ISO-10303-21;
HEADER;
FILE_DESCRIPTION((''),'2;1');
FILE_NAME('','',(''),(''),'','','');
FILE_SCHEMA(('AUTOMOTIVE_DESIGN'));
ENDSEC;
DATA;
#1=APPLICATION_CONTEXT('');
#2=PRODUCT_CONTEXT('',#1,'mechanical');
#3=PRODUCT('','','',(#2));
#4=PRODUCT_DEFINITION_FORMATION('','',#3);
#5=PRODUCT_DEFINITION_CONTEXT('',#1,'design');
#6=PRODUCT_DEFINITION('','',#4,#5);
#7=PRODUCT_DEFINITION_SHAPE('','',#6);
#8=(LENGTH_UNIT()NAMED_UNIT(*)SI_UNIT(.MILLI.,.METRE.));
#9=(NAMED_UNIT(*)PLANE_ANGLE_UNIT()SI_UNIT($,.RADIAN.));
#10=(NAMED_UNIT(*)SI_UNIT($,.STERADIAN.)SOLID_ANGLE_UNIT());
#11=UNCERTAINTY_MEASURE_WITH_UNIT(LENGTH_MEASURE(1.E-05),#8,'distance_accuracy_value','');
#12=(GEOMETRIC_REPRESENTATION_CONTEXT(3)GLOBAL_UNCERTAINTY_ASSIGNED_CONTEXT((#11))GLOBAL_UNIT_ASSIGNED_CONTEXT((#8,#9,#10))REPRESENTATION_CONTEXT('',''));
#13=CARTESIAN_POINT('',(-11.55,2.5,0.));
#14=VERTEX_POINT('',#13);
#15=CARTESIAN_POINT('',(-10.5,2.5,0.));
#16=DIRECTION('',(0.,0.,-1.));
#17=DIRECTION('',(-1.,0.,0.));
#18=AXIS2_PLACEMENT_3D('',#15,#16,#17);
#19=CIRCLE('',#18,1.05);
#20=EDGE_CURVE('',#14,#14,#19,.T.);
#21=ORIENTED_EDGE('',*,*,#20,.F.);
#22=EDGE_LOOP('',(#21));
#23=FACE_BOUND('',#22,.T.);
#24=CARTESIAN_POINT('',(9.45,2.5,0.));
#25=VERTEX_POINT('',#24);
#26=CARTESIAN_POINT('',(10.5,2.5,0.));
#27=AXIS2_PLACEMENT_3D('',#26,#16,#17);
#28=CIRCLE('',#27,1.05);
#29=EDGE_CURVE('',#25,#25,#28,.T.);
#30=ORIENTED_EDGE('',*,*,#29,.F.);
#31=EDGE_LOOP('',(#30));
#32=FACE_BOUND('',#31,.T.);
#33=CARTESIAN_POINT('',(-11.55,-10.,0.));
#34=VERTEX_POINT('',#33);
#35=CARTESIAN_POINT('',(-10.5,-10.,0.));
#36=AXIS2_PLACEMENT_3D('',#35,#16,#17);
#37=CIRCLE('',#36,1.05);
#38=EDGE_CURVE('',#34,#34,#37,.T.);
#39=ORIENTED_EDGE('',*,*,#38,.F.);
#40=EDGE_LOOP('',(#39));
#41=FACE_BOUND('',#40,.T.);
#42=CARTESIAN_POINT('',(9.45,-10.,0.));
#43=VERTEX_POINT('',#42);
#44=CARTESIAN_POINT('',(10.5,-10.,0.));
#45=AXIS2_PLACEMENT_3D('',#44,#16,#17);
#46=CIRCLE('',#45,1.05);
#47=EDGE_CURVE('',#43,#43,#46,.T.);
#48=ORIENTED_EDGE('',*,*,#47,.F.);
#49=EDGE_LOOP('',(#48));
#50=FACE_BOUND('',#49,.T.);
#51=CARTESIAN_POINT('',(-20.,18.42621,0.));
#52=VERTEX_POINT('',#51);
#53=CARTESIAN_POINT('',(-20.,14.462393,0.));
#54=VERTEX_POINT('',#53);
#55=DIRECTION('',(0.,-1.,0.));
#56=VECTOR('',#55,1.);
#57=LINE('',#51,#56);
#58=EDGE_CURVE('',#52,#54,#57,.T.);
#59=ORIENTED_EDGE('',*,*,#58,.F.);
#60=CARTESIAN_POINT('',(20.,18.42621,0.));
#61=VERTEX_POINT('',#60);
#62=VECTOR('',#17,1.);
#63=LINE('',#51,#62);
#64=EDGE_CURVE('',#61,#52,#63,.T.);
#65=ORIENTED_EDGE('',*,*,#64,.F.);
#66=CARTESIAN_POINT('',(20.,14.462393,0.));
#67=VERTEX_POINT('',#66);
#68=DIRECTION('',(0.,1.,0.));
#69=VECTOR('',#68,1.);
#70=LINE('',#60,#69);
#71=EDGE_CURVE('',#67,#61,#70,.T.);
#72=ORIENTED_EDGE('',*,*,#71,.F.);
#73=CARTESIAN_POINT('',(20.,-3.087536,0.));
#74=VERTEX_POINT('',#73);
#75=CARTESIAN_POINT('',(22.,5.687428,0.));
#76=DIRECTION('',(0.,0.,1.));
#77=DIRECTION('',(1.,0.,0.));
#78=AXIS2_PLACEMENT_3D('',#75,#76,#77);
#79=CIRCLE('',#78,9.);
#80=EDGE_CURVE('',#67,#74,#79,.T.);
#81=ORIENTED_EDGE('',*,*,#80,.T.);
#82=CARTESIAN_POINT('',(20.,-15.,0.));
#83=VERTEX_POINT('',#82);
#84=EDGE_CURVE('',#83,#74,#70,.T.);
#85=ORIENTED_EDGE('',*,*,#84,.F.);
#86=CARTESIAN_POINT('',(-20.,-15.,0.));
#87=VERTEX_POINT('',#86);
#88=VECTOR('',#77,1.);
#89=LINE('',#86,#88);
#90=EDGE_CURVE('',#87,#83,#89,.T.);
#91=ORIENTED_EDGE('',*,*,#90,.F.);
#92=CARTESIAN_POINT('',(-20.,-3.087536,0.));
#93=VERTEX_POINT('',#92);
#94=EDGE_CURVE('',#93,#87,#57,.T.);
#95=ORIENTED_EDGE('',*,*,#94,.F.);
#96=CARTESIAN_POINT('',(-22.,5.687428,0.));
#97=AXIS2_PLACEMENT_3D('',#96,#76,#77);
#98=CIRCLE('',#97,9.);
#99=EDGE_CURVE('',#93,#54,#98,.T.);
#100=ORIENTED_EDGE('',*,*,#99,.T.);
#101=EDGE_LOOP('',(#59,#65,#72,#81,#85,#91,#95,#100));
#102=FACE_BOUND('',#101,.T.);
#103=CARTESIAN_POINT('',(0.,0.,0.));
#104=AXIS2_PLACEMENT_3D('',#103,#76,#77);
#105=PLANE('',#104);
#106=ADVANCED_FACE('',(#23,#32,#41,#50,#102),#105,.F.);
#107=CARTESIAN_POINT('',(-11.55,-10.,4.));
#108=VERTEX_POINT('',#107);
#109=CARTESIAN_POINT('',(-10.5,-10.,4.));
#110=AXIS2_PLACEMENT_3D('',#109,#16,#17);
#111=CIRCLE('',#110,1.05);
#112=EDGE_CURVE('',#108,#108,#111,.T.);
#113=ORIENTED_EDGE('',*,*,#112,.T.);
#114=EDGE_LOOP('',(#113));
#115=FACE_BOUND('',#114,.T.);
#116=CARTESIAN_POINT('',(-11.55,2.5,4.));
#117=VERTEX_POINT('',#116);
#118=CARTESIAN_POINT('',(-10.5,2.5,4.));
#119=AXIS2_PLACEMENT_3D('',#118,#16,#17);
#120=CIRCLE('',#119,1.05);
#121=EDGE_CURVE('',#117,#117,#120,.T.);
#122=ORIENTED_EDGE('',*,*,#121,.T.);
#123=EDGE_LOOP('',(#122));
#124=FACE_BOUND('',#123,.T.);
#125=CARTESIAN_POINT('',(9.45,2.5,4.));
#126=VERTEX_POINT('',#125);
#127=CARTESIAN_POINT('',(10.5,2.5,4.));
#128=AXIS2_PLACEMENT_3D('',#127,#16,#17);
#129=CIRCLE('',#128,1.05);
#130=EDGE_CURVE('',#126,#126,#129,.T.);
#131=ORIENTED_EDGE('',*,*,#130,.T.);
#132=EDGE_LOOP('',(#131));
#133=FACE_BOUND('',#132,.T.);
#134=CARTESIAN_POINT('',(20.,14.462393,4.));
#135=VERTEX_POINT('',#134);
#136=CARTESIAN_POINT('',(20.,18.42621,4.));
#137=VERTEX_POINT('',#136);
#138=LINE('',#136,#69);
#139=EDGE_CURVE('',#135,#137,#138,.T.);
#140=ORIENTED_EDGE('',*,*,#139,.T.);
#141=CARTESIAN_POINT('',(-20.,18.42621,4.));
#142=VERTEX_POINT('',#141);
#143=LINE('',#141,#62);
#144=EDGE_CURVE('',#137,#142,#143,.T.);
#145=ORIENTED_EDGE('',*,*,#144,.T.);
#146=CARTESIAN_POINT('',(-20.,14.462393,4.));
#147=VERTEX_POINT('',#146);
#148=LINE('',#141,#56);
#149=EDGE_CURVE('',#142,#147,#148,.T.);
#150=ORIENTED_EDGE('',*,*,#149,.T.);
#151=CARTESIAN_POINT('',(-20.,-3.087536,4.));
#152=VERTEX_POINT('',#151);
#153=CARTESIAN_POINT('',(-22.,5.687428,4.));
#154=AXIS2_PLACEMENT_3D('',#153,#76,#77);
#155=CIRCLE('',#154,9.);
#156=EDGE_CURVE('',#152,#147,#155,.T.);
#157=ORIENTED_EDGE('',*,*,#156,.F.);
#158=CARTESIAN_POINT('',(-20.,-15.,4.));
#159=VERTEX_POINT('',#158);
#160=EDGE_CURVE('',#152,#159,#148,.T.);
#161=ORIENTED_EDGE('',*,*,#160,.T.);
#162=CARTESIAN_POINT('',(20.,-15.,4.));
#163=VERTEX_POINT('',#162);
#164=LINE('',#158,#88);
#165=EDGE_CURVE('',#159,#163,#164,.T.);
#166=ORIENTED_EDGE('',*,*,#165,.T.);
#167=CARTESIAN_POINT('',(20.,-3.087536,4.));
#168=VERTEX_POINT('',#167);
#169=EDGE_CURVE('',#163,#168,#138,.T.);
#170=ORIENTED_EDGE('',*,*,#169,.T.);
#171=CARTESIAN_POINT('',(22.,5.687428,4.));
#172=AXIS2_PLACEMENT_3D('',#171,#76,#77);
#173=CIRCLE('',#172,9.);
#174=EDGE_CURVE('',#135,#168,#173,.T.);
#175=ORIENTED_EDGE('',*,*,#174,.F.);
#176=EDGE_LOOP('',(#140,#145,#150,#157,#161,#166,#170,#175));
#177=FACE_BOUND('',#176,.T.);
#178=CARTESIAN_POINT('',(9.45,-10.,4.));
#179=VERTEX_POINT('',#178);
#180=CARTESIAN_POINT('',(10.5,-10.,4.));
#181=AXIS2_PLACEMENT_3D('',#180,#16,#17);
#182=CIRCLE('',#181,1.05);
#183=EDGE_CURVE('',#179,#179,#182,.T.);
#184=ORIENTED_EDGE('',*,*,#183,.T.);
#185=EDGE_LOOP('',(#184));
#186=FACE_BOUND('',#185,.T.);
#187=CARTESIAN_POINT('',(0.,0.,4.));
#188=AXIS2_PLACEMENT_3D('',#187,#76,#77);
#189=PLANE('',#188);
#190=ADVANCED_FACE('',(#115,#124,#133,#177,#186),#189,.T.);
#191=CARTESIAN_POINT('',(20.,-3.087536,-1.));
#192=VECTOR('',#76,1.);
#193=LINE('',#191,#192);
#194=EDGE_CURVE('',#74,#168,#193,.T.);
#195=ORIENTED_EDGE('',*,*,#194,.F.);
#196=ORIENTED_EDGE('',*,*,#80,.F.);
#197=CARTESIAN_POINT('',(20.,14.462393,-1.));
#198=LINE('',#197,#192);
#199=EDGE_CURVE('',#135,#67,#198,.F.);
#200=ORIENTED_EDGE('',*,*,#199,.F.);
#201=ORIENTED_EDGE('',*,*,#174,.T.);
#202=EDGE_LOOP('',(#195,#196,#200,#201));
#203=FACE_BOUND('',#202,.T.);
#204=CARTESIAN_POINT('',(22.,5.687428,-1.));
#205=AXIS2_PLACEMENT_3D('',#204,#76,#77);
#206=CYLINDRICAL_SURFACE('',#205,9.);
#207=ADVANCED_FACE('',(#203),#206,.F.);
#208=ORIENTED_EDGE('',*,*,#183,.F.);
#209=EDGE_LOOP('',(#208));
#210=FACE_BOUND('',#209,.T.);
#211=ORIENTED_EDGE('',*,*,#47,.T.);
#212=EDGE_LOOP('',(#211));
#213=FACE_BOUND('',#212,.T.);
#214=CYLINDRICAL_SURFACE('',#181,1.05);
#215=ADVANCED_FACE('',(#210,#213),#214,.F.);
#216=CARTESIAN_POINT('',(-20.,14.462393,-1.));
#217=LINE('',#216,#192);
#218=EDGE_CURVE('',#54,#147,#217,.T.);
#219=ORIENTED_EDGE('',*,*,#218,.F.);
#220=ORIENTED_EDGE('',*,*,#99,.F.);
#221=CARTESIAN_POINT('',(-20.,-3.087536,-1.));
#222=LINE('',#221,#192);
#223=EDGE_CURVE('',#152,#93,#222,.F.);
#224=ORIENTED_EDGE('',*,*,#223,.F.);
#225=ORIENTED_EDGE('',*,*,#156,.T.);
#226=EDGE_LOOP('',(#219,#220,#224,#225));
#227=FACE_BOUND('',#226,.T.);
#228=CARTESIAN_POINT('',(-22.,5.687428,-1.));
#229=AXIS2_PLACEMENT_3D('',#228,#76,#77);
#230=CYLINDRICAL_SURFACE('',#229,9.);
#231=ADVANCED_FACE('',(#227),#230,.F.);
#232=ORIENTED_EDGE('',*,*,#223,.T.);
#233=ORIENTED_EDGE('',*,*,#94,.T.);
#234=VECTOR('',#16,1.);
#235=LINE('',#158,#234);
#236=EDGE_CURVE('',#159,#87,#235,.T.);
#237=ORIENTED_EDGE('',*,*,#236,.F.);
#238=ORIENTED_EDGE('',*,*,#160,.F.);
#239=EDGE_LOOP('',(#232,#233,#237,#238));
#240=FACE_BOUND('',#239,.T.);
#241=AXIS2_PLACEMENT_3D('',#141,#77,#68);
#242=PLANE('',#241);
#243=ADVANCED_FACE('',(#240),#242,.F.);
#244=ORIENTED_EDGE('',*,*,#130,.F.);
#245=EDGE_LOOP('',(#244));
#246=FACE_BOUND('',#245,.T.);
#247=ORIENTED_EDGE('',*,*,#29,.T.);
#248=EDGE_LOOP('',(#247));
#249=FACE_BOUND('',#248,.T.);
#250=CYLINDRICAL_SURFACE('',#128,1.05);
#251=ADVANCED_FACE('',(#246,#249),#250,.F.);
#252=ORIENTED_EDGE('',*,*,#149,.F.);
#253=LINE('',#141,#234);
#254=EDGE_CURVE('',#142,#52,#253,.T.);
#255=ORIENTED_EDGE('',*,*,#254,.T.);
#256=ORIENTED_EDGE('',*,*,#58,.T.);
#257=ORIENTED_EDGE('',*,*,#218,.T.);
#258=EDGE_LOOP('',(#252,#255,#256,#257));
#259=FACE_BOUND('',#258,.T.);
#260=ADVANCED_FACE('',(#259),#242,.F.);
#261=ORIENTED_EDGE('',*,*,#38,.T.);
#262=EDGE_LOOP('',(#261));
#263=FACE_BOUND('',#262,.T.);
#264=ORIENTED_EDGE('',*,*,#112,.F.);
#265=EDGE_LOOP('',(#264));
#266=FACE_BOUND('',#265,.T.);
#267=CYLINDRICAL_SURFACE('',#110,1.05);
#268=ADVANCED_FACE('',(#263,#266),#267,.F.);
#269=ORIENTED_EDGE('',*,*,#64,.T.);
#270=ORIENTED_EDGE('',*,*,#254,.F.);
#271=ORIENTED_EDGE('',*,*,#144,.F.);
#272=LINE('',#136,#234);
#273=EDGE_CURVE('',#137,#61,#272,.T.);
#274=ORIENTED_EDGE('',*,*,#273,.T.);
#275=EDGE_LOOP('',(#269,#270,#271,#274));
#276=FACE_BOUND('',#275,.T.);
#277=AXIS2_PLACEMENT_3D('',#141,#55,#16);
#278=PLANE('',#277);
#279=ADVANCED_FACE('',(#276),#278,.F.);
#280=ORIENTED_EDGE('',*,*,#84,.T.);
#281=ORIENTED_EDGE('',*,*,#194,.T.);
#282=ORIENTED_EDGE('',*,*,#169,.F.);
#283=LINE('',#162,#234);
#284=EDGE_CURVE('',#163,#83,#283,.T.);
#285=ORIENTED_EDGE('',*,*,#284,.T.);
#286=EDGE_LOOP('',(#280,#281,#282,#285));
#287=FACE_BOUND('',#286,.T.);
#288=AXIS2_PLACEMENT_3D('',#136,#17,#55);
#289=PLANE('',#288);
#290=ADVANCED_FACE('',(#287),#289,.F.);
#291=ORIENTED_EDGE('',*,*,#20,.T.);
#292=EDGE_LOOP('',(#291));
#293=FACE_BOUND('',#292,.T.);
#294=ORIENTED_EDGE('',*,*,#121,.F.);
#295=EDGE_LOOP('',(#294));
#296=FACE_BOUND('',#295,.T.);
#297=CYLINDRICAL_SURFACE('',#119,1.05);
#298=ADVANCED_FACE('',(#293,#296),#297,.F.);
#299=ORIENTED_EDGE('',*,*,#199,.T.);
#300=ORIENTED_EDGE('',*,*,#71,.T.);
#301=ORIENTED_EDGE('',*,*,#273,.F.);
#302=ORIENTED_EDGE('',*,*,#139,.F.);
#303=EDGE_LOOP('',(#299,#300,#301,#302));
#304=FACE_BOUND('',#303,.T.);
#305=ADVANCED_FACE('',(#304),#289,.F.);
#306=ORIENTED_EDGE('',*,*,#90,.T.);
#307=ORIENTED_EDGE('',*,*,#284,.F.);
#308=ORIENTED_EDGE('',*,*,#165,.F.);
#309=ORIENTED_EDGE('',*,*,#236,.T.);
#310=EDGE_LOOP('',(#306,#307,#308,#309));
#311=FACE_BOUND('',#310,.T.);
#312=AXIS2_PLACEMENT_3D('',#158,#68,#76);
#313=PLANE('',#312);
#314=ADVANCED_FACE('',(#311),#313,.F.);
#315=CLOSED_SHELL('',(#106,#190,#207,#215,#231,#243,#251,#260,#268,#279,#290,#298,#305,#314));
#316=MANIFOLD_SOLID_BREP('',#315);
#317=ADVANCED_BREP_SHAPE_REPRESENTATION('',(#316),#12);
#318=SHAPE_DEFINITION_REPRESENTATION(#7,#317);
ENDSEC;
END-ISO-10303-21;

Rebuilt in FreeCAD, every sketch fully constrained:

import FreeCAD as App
import Part
import Sketcher
Q = App.Units.Quantity


def add_polygon(sketch, points):
    """Adds a closed chain of lines whose ends are joined by coincident constraints."""
    first, n = sketch.GeometryCount, len(points)
    for a, b in zip(points, points[1:] + points[:1]):
        sketch.addGeometry(Part.LineSegment(App.Vector(*a, 0), App.Vector(*b, 0)), False)
    for i in range(n):
        sketch.addConstraint(Sketcher.Constraint("Coincident", first + i, 2, first + (i + 1) % n, 1))

doc = App.newDocument("Part")
params = doc.addObject("Spreadsheet::Sheet", "Params")
for row, (alias, value) in enumerate([
    ("sketch1_width", "40 mm"),
    ("pad1_length", "4 mm"),
    ("sketch2_diameter", "2.1 mm"),
    ("sketch3_diameter", "18 mm"),
    ("pocket2_length", "5 mm"),
], start=1):
    params.set(f"A{row}", alias)
    params.set(f"B{row}", "=" + value)
    params.setAlias(f"B{row}", alias)

body = doc.addObject("PartDesign::Body", "Body")

# Sketch on XY plane
sketch1 = body.newObject("Sketcher::SketchObject", "Sketch")
sketch1.AttachmentSupport = (doc.getObject("XY_Plane"), [""])
sketch1.MapMode = "FlatFace"
add_polygon(sketch1, [(-20, 18), (-20, -15), (20, -15), (20, 18)])  # lines 0-3
sketch1.addConstraint([
    Sketcher.Constraint("Vertical", 0),
    Sketcher.Constraint("Horizontal", 1),
    Sketcher.Constraint("Vertical", 2),
    Sketcher.Constraint("Horizontal", 3),
    Sketcher.Constraint("DistanceX", 1, 1, 1, 2, Q("40 mm")),
    Sketcher.Constraint("DistanceX", 0, 2, -1, 1, Q("20 mm")),
    Sketcher.Constraint("DistanceY", 0, 2, -1, 1, Q("15 mm")),
    Sketcher.Constraint("DistanceY", 0, 2, 0, 1, Q("33.42621 mm")),
])
sketch1.setExpression("Constraints[8]", "Params.sketch1_width")
pad1 = body.newObject("PartDesign::Pad", "Pad")
pad1.Profile = sketch1
pad1.setExpression("Length", "Params.pad1_length")

# Sketch on XY plane
sketch2 = body.newObject("Sketcher::SketchObject", "Sketch001")
sketch2.AttachmentSupport = (doc.getObject("XY_Plane"), [""])
sketch2.MapMode = "FlatFace"
sketch2.addGeometry([
    Part.Circle(App.Vector(10.5, 2.5, 0), App.Vector(0, 0, 1), 1.1),
    Part.Circle(App.Vector(-10.5, 2.5, 0), App.Vector(0, 0, 1), 1.1),
    Part.Circle(App.Vector(10.5, -10, 0), App.Vector(0, 0, 1), 1.1),
    Part.Circle(App.Vector(-10.5, -10, 0), App.Vector(0, 0, 1), 1.1),
], False)
sketch2.addConstraint([
    Sketcher.Constraint("Equal", 0, 1),
    Sketcher.Constraint("Equal", 1, 2),
    Sketcher.Constraint("Equal", 2, 3),
    Sketcher.Constraint("Symmetric", 0, 3, 1, 3, -2),
    Sketcher.Constraint("Symmetric", 2, 3, 3, 3, -2),
    Sketcher.Constraint("Vertical", 0, 3, 2, 3),
    Sketcher.Constraint("Diameter", 0, Q("2.1 mm")),
    Sketcher.Constraint("DistanceY", 2, 3, -1, 1, Q("10 mm")),
    Sketcher.Constraint("DistanceX", 1, 3, 0, 3, Q("21 mm")),
    Sketcher.Constraint("DistanceY", -1, 1, 0, 3, Q("2.5 mm")),
])
sketch2.setExpression("Constraints[6]", "Params.sketch2_diameter")
pocket1 = body.newObject("PartDesign::Pocket", "Pocket")
pocket1.Profile = sketch2
pocket1.Type = "ThroughAll"
pocket1.Reversed = True

# Sketch on XY plane
sketch3 = body.newObject("Sketcher::SketchObject", "Sketch002")
sketch3.AttachmentSupport = (doc.getObject("XY_Plane"), [""])
sketch3.MapMode = "FlatFace"
sketch3.AttachmentOffset = App.Placement(App.Vector(0, 0, 4), App.Rotation())
sketch3.addGeometry([
    Part.Circle(App.Vector(22, 6, 0), App.Vector(0, 0, 1), 9),
    Part.Circle(App.Vector(-22, 6, 0), App.Vector(0, 0, 1), 9),
], False)
sketch3.addConstraint([
    Sketcher.Constraint("Equal", 0, 1),
    Sketcher.Constraint("Symmetric", 0, 3, 1, 3, -2),
    Sketcher.Constraint("Diameter", 0, Q("18 mm")),
    Sketcher.Constraint("DistanceX", -1, 1, 0, 3, Q("22 mm")),
    Sketcher.Constraint("DistanceY", -1, 1, 0, 3, Q("5.687428 mm")),
])
sketch3.setExpression("Constraints[2]", "Params.sketch3_diameter")
pocket2 = body.newObject("PartDesign::Pocket", "Pocket001")
pocket2.Profile = sketch3
pocket2.setExpression("Length", "Params.pocket2_length")

doc.recompute()
